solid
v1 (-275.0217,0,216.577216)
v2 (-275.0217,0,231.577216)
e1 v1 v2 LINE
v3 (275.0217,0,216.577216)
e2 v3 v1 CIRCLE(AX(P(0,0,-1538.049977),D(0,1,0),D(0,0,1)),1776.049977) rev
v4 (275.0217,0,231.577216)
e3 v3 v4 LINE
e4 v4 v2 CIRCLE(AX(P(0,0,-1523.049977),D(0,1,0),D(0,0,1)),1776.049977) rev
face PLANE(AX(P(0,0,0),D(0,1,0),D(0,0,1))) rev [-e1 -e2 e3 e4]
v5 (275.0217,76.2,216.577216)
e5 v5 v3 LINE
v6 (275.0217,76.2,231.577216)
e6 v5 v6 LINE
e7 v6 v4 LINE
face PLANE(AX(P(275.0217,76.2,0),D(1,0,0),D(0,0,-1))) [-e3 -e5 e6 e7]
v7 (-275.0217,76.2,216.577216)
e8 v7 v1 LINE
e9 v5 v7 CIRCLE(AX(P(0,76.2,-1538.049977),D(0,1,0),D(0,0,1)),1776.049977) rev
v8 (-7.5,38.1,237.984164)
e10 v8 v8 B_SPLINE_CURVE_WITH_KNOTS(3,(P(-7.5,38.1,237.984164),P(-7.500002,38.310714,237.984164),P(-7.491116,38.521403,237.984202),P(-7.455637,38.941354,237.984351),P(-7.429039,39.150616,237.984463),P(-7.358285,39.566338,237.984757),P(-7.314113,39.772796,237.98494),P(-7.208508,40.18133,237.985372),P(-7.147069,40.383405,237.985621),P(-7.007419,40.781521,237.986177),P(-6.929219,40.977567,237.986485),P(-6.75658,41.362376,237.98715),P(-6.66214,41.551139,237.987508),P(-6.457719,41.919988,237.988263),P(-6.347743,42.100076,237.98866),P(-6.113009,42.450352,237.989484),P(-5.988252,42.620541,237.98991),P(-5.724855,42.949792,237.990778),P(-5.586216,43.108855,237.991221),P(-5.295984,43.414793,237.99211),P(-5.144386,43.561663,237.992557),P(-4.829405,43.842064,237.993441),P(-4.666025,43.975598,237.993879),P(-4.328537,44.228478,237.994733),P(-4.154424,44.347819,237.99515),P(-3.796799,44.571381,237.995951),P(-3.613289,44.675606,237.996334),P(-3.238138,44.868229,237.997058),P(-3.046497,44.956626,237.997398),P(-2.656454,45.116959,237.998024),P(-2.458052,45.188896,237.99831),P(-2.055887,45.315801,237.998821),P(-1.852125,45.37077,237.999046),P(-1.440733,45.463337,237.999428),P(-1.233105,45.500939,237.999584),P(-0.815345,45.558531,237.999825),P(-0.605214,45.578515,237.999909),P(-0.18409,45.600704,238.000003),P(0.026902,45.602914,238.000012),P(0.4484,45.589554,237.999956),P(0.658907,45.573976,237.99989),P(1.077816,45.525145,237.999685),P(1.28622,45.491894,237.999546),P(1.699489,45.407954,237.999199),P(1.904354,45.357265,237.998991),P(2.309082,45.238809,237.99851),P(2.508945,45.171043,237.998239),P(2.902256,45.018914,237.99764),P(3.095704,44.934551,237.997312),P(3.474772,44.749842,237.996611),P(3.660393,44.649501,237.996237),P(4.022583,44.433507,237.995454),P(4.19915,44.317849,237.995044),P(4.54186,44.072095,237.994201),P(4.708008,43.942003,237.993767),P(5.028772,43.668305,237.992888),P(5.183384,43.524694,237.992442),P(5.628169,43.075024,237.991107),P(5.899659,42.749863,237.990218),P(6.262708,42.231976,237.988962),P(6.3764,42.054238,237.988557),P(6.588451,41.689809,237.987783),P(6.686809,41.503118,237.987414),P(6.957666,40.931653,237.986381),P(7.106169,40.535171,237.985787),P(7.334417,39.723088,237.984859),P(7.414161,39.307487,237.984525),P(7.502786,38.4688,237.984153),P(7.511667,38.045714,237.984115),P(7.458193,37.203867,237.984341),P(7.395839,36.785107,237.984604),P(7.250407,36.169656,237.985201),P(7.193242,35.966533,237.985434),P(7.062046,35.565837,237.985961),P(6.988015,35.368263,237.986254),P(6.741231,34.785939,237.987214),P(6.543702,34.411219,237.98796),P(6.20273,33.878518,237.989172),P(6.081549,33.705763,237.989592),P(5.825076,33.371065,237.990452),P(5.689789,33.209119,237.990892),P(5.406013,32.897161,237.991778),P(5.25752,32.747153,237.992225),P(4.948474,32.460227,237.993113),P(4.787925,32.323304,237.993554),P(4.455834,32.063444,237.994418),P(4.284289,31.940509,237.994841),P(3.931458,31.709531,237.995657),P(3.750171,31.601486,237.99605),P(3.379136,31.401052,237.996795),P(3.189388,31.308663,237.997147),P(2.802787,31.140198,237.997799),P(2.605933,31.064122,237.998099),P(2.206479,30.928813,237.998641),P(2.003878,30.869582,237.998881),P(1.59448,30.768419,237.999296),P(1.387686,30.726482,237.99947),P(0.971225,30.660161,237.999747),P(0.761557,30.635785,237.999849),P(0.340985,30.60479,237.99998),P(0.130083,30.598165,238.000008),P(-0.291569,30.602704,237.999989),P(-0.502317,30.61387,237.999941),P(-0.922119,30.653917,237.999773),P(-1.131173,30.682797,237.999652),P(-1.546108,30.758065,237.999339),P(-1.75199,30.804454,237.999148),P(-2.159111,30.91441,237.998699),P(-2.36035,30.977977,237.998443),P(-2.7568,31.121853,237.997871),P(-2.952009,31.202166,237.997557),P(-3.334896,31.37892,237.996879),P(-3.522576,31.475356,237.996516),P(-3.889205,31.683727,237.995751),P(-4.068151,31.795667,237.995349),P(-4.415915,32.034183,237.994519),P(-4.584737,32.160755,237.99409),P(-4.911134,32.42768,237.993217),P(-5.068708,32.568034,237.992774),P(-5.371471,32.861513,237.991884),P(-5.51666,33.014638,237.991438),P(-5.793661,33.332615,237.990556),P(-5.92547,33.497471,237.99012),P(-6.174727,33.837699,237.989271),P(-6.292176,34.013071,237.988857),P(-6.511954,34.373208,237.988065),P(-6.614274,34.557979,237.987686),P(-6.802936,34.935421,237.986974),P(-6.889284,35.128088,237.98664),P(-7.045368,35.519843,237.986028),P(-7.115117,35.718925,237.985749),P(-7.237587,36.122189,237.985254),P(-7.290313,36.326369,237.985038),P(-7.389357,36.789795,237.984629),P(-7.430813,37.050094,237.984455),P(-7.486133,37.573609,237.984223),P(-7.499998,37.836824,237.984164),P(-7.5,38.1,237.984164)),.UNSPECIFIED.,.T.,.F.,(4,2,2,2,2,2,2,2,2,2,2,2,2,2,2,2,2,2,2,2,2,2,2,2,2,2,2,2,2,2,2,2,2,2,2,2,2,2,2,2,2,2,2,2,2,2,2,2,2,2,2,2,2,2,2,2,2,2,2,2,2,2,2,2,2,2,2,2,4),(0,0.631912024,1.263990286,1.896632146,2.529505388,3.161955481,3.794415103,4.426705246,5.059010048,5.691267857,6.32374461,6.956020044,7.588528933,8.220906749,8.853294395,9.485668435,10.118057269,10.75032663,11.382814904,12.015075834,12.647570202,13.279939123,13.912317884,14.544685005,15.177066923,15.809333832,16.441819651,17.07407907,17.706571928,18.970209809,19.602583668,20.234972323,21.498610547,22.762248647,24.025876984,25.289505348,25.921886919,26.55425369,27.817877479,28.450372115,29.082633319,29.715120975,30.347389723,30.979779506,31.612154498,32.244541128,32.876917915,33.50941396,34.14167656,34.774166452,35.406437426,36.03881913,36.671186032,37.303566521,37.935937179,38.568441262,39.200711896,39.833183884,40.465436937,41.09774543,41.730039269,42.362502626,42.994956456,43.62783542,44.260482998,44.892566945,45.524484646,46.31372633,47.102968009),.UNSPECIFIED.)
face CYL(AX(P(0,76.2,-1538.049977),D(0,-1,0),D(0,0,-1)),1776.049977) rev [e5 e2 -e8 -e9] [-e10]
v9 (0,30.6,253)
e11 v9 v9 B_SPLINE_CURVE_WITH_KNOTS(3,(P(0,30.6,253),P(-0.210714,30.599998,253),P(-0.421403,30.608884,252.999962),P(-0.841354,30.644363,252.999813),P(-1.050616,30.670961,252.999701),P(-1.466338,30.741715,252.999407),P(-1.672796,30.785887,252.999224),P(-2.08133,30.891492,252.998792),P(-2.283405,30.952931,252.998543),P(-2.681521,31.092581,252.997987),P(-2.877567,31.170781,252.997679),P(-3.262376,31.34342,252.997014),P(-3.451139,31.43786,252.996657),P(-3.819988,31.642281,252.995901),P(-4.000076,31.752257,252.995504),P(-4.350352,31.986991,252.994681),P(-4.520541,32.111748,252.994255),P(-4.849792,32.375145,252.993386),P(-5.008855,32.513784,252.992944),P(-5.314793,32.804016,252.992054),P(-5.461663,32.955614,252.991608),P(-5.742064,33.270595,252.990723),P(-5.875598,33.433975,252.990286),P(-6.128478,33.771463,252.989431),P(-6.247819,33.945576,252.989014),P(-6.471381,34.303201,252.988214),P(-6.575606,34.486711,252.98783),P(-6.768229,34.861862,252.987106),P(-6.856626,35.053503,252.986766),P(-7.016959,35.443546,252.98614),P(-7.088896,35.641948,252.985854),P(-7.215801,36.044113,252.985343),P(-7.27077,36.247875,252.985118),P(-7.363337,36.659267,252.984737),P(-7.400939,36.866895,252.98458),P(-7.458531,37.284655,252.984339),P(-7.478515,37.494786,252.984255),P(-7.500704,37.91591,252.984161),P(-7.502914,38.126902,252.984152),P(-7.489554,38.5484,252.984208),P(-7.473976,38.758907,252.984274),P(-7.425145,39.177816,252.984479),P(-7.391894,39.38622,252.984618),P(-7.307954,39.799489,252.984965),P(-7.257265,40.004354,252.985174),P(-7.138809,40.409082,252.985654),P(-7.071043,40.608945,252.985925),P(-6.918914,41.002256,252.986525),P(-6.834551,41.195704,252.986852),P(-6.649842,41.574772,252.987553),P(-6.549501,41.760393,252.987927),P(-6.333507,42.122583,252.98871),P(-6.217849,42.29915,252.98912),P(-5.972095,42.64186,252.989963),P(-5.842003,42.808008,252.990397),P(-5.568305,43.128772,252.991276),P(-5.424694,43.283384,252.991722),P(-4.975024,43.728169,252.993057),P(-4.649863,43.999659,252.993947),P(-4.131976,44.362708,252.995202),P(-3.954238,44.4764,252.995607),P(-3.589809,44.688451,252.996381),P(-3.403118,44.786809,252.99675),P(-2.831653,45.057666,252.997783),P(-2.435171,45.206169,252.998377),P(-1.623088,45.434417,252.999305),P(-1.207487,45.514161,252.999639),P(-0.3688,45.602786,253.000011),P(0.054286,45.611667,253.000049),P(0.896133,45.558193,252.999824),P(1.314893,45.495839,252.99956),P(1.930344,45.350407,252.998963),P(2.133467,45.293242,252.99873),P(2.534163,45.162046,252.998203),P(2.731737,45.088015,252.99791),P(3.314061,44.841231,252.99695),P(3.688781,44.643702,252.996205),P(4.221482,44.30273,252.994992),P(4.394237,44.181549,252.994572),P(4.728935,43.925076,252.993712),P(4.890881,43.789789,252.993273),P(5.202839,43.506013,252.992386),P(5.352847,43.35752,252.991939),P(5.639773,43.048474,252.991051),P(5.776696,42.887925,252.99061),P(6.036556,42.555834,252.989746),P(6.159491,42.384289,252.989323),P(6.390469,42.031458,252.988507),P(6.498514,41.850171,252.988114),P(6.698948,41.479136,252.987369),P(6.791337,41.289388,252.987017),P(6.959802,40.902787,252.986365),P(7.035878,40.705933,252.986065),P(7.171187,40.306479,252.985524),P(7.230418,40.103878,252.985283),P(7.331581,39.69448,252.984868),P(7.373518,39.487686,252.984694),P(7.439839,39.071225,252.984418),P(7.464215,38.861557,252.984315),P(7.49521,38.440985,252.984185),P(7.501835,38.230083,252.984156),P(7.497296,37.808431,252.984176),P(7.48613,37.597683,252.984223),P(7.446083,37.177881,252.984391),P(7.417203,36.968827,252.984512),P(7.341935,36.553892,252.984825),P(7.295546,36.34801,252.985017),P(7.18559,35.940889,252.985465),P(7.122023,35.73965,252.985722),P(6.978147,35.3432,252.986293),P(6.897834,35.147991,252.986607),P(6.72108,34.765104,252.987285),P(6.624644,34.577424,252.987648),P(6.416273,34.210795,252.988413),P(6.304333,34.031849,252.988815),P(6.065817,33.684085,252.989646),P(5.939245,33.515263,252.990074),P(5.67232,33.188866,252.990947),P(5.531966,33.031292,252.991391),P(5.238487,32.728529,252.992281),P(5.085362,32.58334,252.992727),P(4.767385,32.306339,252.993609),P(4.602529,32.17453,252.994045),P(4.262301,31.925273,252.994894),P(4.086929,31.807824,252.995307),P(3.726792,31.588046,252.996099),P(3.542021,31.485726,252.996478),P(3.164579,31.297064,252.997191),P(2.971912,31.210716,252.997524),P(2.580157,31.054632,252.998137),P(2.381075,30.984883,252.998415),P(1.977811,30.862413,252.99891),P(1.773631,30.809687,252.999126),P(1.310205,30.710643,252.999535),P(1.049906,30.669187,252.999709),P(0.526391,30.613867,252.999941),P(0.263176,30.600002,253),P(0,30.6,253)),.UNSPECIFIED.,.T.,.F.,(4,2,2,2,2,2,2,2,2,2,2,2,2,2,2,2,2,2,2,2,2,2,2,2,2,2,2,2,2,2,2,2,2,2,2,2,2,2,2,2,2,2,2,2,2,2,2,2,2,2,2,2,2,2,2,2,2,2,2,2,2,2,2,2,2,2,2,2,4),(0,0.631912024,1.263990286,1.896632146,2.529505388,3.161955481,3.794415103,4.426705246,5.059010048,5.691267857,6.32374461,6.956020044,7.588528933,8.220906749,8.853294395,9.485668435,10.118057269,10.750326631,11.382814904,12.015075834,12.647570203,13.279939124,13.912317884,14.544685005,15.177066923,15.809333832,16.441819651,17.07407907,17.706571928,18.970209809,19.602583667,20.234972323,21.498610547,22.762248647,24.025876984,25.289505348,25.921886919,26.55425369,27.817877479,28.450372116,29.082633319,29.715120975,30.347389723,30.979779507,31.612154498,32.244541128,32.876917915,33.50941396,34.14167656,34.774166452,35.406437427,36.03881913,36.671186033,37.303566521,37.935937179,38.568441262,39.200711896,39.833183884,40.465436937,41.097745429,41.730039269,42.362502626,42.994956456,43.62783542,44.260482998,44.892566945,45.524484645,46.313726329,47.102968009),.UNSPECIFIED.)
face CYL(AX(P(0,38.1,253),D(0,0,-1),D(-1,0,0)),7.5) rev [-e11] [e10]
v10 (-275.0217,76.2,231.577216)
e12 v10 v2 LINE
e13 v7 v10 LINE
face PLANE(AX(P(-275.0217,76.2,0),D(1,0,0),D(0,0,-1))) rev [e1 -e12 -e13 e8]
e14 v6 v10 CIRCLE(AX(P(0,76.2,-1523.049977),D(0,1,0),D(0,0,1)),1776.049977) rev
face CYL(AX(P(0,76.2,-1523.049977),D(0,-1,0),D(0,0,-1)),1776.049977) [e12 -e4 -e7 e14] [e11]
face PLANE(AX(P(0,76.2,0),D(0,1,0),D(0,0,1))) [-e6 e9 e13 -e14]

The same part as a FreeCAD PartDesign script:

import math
import FreeCAD as App
import Part
import Sketcher
Q = App.Units.Quantity

doc = App.newDocument("Part")
body = doc.addObject("PartDesign::Body", "Body")

# Sketch on XZ plane
sketch1 = body.newObject("Sketcher::SketchObject", "Sketch")
sketch1.AttachmentSupport = (doc.getObject("XZ_Plane"), [""])
sketch1.MapMode = "FlatFace"
sketch1.addGeometry([
    Part.ArcOfCircle(Part.Circle(App.Vector(0, -1538.049978, 0), App.Vector(0, 0, 1), 1776.049978), math.radians(81.091891), math.radians(98.908109)),
    Part.LineSegment(App.Vector(-275.0217, 216.577216, 0), App.Vector(-275.0217, 231.577216, 0)),
    Part.ArcOfCircle(Part.Circle(App.Vector(0, -1523.049978, 0), App.Vector(0, 0, 1), 1776.049978), math.radians(81.091891), math.radians(98.908109)),
    Part.LineSegment(App.Vector(275.0217, 231.577216, 0), App.Vector(275.0217, 216.577216, 0)),
], False)
sketch1.addConstraint([
    Sketcher.Constraint("Coincident", 0, 2, 1, 1),
    Sketcher.Constraint("Coincident", 1, 2, 2, 2),
    Sketcher.Constraint("Coincident", 2, 1, 3, 1),
    Sketcher.Constraint("Coincident", 3, 2, 0, 1),
    Sketcher.Constraint("Vertical", 1),
    Sketcher.Constraint("Vertical", 3),
    Sketcher.Constraint("Equal", 0, 2),
    Sketcher.Constraint("PointOnObject", 0, 3, -2),
    Sketcher.Constraint("PointOnObject", 2, 3, -2),
    Sketcher.Constraint("DistanceY", 1, 1, 1, 2, Q("15 mm")),
    Sketcher.Constraint("Radius", 0, Q("1776.049978 mm")),
    Sketcher.Constraint("DistanceX", 1, 2, -1, 1, Q("275.0217 mm")),
    Sketcher.Constraint("DistanceX", -1, 1, 3, 2, Q("275.0217 mm")),
    Sketcher.Constraint("DistanceY", 0, 3, -1, 1, Q("1538.049978 mm")),
])
pad1 = body.newObject("PartDesign::Pad", "Pad")
pad1.Profile = sketch1
pad1.Length = Q("3 in")
pad1.Reversed = True

# Sketch on XY plane
sketch2 = body.newObject("Sketcher::SketchObject", "Sketch001")
sketch2.AttachmentSupport = (doc.getObject("XY_Plane"), [""])
sketch2.MapMode = "FlatFace"
sketch2.addGeometry(Part.Circle(App.Vector(0, 38.1, 0), App.Vector(0, 0, 1), 7.5), False)
sketch2.addConstraint([
    Sketcher.Constraint("PointOnObject", 0, 3, -2),
    Sketcher.Constraint("DistanceY", -1, 1, 0, 3, Q("1.5 in")),
    Sketcher.Constraint("Diameter", 0, Q("15 mm")),
])
pocket1 = body.newObject("PartDesign::Pocket", "Pocket")
pocket1.Profile = sketch2
pocket1.Type = "ThroughAll"
pocket1.Reversed = True

doc.recompute()
